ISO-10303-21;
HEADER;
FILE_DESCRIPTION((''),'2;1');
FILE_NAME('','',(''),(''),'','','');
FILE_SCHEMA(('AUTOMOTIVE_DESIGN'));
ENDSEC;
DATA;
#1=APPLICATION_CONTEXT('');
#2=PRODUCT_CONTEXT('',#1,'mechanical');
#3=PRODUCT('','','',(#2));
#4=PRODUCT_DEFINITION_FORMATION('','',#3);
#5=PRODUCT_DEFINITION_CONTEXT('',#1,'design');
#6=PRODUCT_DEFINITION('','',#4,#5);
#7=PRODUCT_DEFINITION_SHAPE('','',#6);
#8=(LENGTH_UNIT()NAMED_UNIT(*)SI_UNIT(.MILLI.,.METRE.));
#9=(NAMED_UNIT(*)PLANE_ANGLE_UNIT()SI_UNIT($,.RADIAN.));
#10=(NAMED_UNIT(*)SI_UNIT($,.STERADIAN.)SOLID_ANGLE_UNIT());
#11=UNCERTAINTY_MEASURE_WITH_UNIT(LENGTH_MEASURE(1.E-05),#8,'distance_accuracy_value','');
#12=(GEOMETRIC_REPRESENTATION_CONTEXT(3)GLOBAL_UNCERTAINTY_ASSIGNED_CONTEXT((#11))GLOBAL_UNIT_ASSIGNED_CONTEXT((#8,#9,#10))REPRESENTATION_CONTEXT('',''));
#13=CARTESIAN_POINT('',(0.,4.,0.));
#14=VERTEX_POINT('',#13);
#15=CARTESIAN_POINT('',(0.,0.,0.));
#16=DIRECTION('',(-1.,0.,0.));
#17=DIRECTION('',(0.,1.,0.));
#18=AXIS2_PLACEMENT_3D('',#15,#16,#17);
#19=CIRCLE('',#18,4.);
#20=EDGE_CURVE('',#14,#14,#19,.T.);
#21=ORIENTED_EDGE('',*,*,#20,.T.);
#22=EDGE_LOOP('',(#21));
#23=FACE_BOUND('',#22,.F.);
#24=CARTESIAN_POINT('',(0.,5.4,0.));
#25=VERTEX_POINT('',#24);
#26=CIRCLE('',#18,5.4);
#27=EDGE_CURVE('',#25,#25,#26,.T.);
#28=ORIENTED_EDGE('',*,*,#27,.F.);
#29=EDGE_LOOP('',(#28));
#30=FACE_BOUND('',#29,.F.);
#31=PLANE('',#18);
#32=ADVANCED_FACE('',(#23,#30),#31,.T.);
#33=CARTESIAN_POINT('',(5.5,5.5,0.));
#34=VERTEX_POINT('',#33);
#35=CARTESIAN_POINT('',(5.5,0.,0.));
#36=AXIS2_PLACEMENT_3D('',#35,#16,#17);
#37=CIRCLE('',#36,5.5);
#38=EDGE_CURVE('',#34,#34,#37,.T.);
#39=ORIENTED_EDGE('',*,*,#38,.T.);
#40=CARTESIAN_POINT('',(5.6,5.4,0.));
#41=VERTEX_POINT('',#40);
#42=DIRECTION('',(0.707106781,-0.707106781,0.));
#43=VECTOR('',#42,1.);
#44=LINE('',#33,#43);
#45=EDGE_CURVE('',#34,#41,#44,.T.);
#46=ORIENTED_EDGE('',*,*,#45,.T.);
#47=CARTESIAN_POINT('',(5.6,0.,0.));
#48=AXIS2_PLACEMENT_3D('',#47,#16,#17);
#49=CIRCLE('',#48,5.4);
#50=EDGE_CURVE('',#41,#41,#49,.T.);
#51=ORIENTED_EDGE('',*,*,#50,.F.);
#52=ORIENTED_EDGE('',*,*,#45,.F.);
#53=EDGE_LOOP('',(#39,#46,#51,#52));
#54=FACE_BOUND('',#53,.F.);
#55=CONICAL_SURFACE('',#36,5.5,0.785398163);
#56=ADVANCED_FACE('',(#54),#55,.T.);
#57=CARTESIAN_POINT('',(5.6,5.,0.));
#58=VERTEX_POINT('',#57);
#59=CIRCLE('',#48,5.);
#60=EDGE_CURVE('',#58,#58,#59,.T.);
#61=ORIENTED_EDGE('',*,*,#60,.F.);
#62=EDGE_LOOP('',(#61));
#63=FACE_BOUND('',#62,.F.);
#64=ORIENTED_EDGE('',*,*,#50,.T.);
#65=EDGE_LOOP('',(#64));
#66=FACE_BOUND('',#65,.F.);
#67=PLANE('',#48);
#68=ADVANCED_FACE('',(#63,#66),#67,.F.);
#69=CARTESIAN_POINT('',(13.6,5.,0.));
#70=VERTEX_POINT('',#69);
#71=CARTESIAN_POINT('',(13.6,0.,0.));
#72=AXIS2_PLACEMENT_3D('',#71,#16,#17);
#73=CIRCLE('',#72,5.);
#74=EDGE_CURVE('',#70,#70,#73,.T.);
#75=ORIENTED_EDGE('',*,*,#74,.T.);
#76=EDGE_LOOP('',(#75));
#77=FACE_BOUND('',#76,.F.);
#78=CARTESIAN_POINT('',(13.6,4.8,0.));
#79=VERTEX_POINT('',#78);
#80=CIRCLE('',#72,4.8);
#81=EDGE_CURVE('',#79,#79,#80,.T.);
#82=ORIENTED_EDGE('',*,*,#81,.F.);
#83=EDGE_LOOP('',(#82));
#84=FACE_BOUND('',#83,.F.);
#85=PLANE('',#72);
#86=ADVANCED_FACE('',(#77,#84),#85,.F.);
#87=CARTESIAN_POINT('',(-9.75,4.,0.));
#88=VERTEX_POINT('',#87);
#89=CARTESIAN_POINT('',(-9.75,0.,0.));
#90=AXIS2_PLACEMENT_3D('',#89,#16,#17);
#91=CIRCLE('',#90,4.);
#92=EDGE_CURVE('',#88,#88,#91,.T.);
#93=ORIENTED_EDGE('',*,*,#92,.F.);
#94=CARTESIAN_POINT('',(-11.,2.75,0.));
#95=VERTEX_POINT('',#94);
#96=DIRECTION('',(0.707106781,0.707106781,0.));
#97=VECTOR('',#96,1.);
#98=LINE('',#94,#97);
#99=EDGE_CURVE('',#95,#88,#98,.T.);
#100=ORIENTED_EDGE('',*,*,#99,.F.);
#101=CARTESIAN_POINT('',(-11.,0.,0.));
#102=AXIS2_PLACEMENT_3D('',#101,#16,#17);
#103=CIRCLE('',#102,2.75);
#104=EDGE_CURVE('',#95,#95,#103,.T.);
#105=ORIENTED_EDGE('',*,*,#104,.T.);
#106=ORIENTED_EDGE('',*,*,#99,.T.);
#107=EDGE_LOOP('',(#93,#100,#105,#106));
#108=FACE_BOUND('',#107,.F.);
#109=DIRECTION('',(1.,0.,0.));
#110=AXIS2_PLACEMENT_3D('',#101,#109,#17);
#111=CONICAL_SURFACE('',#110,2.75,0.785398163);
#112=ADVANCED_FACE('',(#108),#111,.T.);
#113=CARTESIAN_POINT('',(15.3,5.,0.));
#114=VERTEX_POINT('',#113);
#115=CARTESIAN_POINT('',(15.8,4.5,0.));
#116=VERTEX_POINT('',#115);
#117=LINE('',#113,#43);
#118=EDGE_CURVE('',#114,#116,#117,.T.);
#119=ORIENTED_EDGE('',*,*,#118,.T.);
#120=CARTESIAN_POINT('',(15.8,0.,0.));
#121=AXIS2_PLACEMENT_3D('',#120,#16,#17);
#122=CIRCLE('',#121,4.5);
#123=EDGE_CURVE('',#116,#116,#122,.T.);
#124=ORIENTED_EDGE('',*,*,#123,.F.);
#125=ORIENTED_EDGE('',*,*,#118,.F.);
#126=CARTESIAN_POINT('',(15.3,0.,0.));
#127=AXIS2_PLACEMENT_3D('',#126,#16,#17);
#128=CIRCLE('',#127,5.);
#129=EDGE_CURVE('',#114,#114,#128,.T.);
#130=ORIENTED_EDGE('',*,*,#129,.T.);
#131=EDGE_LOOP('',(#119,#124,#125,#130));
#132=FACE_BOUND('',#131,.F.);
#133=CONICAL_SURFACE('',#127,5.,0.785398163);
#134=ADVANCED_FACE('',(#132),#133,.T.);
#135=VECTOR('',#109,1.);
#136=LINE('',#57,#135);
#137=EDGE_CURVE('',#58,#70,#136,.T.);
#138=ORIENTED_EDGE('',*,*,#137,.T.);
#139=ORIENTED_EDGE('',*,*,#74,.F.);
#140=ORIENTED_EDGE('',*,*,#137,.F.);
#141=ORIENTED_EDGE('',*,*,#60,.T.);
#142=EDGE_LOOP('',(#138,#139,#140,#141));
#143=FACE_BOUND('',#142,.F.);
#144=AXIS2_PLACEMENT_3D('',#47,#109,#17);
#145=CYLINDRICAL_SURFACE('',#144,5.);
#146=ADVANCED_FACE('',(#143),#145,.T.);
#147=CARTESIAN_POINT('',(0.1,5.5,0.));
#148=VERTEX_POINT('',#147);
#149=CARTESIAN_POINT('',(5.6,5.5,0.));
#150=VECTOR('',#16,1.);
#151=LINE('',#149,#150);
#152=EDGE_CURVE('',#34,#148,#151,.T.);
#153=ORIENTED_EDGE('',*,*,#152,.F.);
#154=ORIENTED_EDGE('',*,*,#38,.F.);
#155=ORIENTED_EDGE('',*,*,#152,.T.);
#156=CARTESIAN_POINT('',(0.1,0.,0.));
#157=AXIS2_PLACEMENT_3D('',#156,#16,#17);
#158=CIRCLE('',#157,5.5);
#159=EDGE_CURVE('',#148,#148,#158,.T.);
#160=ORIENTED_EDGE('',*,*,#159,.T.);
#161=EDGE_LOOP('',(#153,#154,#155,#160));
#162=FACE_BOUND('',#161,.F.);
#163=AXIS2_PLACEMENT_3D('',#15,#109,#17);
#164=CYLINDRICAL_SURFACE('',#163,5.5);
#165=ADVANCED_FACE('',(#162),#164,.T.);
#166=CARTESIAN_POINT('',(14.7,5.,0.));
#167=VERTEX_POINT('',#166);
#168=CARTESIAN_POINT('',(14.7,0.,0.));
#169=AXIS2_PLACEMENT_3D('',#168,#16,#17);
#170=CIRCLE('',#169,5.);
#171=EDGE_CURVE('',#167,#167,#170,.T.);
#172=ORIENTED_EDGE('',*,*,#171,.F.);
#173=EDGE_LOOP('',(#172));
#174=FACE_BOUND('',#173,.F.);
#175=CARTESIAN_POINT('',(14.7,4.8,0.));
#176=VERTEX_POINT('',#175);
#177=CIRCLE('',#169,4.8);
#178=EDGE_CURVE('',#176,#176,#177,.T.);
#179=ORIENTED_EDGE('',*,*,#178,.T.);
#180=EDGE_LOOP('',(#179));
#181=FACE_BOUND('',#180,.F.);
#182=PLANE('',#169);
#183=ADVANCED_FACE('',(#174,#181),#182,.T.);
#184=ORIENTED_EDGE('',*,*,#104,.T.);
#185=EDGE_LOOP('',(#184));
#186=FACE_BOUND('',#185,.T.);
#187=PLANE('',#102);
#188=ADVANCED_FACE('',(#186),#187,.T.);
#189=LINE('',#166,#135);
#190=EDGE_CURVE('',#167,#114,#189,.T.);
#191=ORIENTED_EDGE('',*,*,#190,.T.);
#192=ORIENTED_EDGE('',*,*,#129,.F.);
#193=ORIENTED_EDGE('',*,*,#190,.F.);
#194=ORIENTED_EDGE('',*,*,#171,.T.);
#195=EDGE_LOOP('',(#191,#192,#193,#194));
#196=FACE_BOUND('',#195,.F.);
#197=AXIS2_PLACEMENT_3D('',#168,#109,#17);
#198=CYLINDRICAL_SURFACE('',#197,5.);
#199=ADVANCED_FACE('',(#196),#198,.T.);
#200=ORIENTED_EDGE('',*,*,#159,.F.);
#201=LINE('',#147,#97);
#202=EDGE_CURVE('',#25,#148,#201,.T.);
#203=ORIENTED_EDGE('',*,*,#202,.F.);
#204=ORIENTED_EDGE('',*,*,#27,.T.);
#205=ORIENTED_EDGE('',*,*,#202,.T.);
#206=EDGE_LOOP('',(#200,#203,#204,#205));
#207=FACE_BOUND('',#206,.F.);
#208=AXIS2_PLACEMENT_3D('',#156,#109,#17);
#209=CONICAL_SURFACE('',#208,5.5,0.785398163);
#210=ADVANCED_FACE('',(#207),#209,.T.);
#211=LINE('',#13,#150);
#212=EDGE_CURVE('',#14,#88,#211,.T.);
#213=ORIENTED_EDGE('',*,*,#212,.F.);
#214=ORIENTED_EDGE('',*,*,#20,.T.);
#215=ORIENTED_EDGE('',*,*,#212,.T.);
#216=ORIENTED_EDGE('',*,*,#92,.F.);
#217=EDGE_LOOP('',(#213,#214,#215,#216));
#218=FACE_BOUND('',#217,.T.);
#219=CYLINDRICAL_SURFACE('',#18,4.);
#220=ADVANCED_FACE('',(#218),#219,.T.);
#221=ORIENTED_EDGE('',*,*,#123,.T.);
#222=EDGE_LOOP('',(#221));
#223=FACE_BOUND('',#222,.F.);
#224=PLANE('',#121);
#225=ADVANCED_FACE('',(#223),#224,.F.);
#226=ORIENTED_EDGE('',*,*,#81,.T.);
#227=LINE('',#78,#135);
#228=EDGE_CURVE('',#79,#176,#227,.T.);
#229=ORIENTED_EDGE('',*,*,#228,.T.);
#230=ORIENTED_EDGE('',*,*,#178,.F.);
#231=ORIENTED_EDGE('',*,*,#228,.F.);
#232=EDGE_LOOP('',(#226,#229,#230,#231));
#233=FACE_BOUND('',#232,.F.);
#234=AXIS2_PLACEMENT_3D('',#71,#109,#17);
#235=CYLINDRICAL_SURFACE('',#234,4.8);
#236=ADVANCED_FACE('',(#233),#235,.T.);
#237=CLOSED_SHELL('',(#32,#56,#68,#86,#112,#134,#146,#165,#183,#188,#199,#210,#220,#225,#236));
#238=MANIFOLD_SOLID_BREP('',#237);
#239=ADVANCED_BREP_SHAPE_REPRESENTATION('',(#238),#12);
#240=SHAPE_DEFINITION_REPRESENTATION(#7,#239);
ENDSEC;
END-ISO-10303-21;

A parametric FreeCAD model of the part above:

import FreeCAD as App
import Part
import Sketcher
from FreeCAD import Vector


def edges_at(feature, points):
    """Names of the edges that pass closest to the given points."""
    edges = feature.Shape.Edges
    near = lambda p: min(range(len(edges)), key=lambda i: edges[i].distToShape(Part.Vertex(*p))[0])
    return sorted({f"Edge{near(p) + 1}" for p in points})

doc = App.newDocument("Part")
body = doc.addObject("PartDesign::Body", "Body")

sketch1 = body.newObject("Sketcher::SketchObject", "Sketch")
sketch1.AttachmentSupport = (doc.getObject("XY_Plane"), [""])
sketch1.MapMode = "FlatFace"
sketch1.addGeometry(Part.LineSegment(Vector(-11, 0, 0), Vector(15.8, 0, 0)), False)
sketch1.addGeometry(Part.LineSegment(Vector(15.8, 0, 0), Vector(15.8, 4.5, 0)), False)
sketch1.addGeometry(Part.LineSegment(Vector(15.8, 4.5, 0), Vector(15.3, 5, 0)), False)
sketch1.addGeometry(Part.LineSegment(Vector(15.3, 5, 0), Vector(14.7, 5, 0)), False)
sketch1.addGeometry(Part.LineSegment(Vector(14.7, 5, 0), Vector(14.7, 4.8, 0)), False)
sketch1.addGeometry(Part.LineSegment(Vector(14.7, 4.8, 0), Vector(13.6, 4.8, 0)), False)
sketch1.addGeometry(Part.LineSegment(Vector(13.6, 4.8, 0), Vector(13.6, 5, 0)), False)
sketch1.addGeometry(Part.LineSegment(Vector(13.6, 5, 0), Vector(5.6, 5, 0)), False)
sketch1.addGeometry(Part.LineSegment(Vector(5.6, 5, 0), Vector(5.6, 5.5, 0)), False)
sketch1.addGeometry(Part.LineSegment(Vector(5.6, 5.5, 0), Vector(0, 5.5, 0)), False)
sketch1.addGeometry(Part.LineSegment(Vector(0, 5.5, 0), Vector(0, 4, 0)), False)
sketch1.addGeometry(Part.LineSegment(Vector(0, 4, 0), Vector(-9.75, 4, 0)), False)
sketch1.addGeometry(Part.LineSegment(Vector(-9.75, 4, 0), Vector(-11, 2.75, 0)), False)
sketch1.addGeometry(Part.LineSegment(Vector(-11, 2.75, 0), Vector(-11, 0, 0)), False)
sketch1.addConstraint(Sketcher.Constraint("Coincident", 0, 2, 1, 1))
sketch1.addConstraint(Sketcher.Constraint("Coincident", 1, 2, 2, 1))
sketch1.addConstraint(Sketcher.Constraint("Coincident", 2, 2, 3, 1))
sketch1.addConstraint(Sketcher.Constraint("Coincident", 3, 2, 4, 1))
sketch1.addConstraint(Sketcher.Constraint("Coincident", 4, 2, 5, 1))
sketch1.addConstraint(Sketcher.Constraint("Coincident", 5, 2, 6, 1))
sketch1.addConstraint(Sketcher.Constraint("Coincident", 6, 2, 7, 1))
sketch1.addConstraint(Sketcher.Constraint("Coincident", 7, 2, 8, 1))
sketch1.addConstraint(Sketcher.Constraint("Coincident", 8, 2, 9, 1))
sketch1.addConstraint(Sketcher.Constraint("Coincident", 9, 2, 10, 1))
sketch1.addConstraint(Sketcher.Constraint("Coincident", 10, 2, 11, 1))
sketch1.addConstraint(Sketcher.Constraint("Coincident", 11, 2, 12, 1))
sketch1.addConstraint(Sketcher.Constraint("Coincident", 12, 2, 13, 1))
sketch1.addConstraint(Sketcher.Constraint("Coincident", 13, 2, 0, 1))
sketch1.addConstraint(Sketcher.Constraint("Horizontal", 0))
sketch1.addConstraint(Sketcher.Constraint("Vertical", 1))
sketch1.addConstraint(Sketcher.Constraint("Horizontal", 3))
sketch1.addConstraint(Sketcher.Constraint("Vertical", 4))
sketch1.addConstraint(Sketcher.Constraint("Horizontal", 5))
sketch1.addConstraint(Sketcher.Constraint("Vertical", 6))
sketch1.addConstraint(Sketcher.Constraint("Horizontal", 7))
sketch1.addConstraint(Sketcher.Constraint("Vertical", 8))
sketch1.addConstraint(Sketcher.Constraint("Horizontal", 9))
sketch1.addConstraint(Sketcher.Constraint("Vertical", 10))
sketch1.addConstraint(Sketcher.Constraint("Horizontal", 11))
sketch1.addConstraint(Sketcher.Constraint("Vertical", 13))
sketch1.addConstraint(Sketcher.Constraint("PointOnObject", 0, 2, -1))
sketch1.addConstraint(Sketcher.Constraint("PointOnObject", 9, 2, -2))
sketch1.addConstraint(Sketcher.Constraint("Perpendicular", 2, 12))
sketch1.addConstraint(Sketcher.Constraint("Horizontal", 3, 2, 6, 2))
sketch1.addConstraint(Sketcher.Constraint("DistanceX", 7, 2, 7, 1, 8.0))
sketch1.addConstraint(Sketcher.Constraint("DistanceX", 3, 2, 3, 1, 0.6))
sketch1.addConstraint(Sketcher.Constraint("DistanceX", 5, 2, 5, 1, 1.1))
sketch1.addConstraint(Sketcher.Constraint("DistanceY", 8, 1, 8, 2, 0.5))
sketch1.addConstraint(Sketcher.Constraint("DistanceY", 10, 2, 10, 1, 1.5))
sketch1.addConstraint(Sketcher.Constraint("DistanceX", 12, 2, -1, 1, 11.0))
sketch1.addConstraint(Sketcher.Constraint("DistanceX", 2, 2, 1, 2, 0.5))
sketch1.addConstraint(Sketcher.Constraint("DistanceY", 1, 2, 2, 2, 0.5))
sketch1.addConstraint(Sketcher.Constraint("DistanceX", 12, 2, 11, 2, 1.25))
sketch1.addConstraint(Sketcher.Constraint("DistanceX", 0, 1, 0, 2, 26.8))
sketch1.addConstraint(Sketcher.Constraint("DistanceY", 1, 1, 1, 2, 4.5))
sketch1.addConstraint(Sketcher.Constraint("DistanceY", 4, 2, 4, 1, 0.2))
revolution = body.newObject("PartDesign::Revolution", "Revolution")
revolution.Profile = sketch1
revolution.ReferenceAxis = (sketch1, ["H_Axis"])
revolution.Angle = 360
doc.recompute()

chamfer = body.newObject("PartDesign::Chamfer", "Chamfer")
chamfer.Base = (revolution, edges_at(revolution, [(5.6, -5.5, 0), (0, -5.5, 0)]))
chamfer.Size = 0.1

doc.recompute()
